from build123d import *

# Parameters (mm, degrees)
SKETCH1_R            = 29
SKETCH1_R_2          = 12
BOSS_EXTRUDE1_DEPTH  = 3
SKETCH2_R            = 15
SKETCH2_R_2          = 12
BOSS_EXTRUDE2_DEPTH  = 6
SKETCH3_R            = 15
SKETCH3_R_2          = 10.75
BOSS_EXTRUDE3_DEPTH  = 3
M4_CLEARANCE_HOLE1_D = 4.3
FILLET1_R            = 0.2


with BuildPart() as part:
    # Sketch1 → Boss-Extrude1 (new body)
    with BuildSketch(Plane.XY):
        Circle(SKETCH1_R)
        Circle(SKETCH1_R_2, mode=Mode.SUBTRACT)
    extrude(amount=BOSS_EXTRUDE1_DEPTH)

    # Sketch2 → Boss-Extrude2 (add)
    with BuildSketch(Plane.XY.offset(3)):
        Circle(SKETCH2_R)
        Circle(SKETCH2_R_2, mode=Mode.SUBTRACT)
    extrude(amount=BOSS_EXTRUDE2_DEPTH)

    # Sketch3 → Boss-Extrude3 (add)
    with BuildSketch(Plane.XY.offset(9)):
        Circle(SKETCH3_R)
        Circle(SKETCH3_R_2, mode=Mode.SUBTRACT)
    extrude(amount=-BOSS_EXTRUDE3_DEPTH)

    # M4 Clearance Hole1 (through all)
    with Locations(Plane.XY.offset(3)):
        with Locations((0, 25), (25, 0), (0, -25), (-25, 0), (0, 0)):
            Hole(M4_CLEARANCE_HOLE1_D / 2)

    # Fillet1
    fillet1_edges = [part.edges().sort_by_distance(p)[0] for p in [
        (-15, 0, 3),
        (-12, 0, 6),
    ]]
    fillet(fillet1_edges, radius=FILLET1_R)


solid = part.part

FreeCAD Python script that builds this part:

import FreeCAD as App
import Part
import Sketcher
Q = App.Units.Quantity


def edges_at(feature, points):
    """Names of the edges that pass closest to the given points."""
    edges = feature.Shape.Edges
    near = lambda p: min(range(len(edges)), key=lambda i: edges[i].distToShape(Part.Vertex(*p))[0])
    return sorted({f"Edge{near(p) + 1}" for p in points})

doc = App.newDocument("Part")
body = doc.addObject("PartDesign::Body", "Body")

# Sketch on XY plane
sketch1 = doc.addObject("Sketcher::SketchObject", "Sketch")
body.addObject(sketch1)
sketch1.AttachmentSupport = (doc.XY_Plane, [""])
sketch1.MapMode = "FlatFace"
sketch1.addGeometry([
    Part.Circle(App.Vector(0, 0, 0), App.Vector(0, 0, 1), 29),
    Part.Circle(App.Vector(0, 0, 0), App.Vector(0, 0, 1), 12),
], False)
sketch1.addConstraint([
    Sketcher.Constraint("Coincident", 0, 3, -1, 1),
    Sketcher.Constraint("Coincident", 1, 3, -1, 1),
    Sketcher.Constraint("Diameter", 0, Q("58 mm")),
    Sketcher.Constraint("Diameter", 1, Q("24 mm")),
])
pad1 = doc.addObject("PartDesign::Pad", "Pad")
body.addObject(pad1)
pad1.Profile = sketch1
pad1.Length = 3

# Sketch on XY plane
sketch2 = doc.addObject("Sketcher::SketchObject", "Sketch001")
body.addObject(sketch2)
sketch2.AttachmentSupport = (doc.XY_Plane, [""])
sketch2.MapMode = "FlatFace"
sketch2.AttachmentOffset = App.Placement(App.Vector(0, 0, 3), App.Rotation())
sketch2.addGeometry([
    Part.Circle(App.Vector(0, 0, 0), App.Vector(0, 0, 1), 15),
    Part.Circle(App.Vector(0, 0, 0), App.Vector(0, 0, 1), 12),
], False)
sketch2.addConstraint([
    Sketcher.Constraint("Coincident", 0, 3, -1, 1),
    Sketcher.Constraint("Coincident", 1, 3, -1, 1),
    Sketcher.Constraint("Diameter", 0, Q("30 mm")),
    Sketcher.Constraint("Diameter", 1, Q("24 mm")),
])
pad2 = doc.addObject("PartDesign::Pad", "Pad001")
body.addObject(pad2)
pad2.Profile = sketch2
pad2.Length = 6

# Sketch on XY plane
sketch3 = doc.addObject("Sketcher::SketchObject", "Sketch002")
body.addObject(sketch3)
sketch3.AttachmentSupport = (doc.XY_Plane, [""])
sketch3.MapMode = "FlatFace"
sketch3.AttachmentOffset = App.Placement(App.Vector(0, 0, 9), App.Rotation())
sketch3.addGeometry([
    Part.Circle(App.Vector(0, 0, 0), App.Vector(0, 0, 1), 15),
    Part.Circle(App.Vector(0, 0, 0), App.Vector(0, 0, 1), 10.75),
], False)
sketch3.addConstraint([
    Sketcher.Constraint("Coincident", 0, 3, -1, 1),
    Sketcher.Constraint("Coincident", 1, 3, -1, 1),
    Sketcher.Constraint("Diameter", 0, Q("30 mm")),
    Sketcher.Constraint("Diameter", 1, Q("21.5 mm")),
])
pad3 = doc.addObject("PartDesign::Pad", "Pad002")
body.addObject(pad3)
pad3.Profile = sketch3
pad3.Length = 3
pad3.Reversed = True

# Sketch on XY plane
sketch4 = doc.addObject("Sketcher::SketchObject", "Sketch003")
body.addObject(sketch4)
sketch4.AttachmentSupport = (doc.XY_Plane, [""])
sketch4.MapMode = "FlatFace"
sketch4.AttachmentOffset = App.Placement(App.Vector(0, 0, 3), App.Rotation())
sketch4.addGeometry([
    Part.Circle(App.Vector(0, 25, 0), App.Vector(0, 0, 1), 2.15),  # 0
    Part.Circle(App.Vector(25, 0, 0), App.Vector(0, 0, 1), 2.15),  # 1
    Part.Circle(App.Vector(0, -25, 0), App.Vector(0, 0, 1), 2.15),  # 2
    Part.Circle(App.Vector(-25, 0, 0), App.Vector(0, 0, 1), 2.15),  # 3
    Part.Circle(App.Vector(0, 0, 0), App.Vector(0, 0, 1), 2.15),  # 4
], False)
sketch4.addConstraint([
    Sketcher.Constraint("Coincident", 4, 3, -1, 1),
    Sketcher.Constraint("Equal", 0, 1),
    Sketcher.Constraint("Equal", 1, 2),
    Sketcher.Constraint("Equal", 2, 3),
    Sketcher.Constraint("Equal", 3, 4),
    Sketcher.Constraint("Symmetric", 0, 3, 2, 3, -1, 1),
    Sketcher.Constraint("Symmetric", 1, 3, 3, 3, -1, 1),
    Sketcher.Constraint("PointOnObject", 0, 3, -2),
    Sketcher.Constraint("PointOnObject", 1, 3, -1),
    Sketcher.Constraint("Diameter", 0, Q("4.3 mm")),
    Sketcher.Constraint("DistanceY", -1, 1, 0, 3, Q("25 mm")),
    Sketcher.Constraint("DistanceX", -1, 1, 1, 3, Q("25 mm")),
])
doc.recompute()
hole = doc.addObject("PartDesign::Hole", "Hole")
body.addObject(hole)
hole.Profile = sketch4
hole.ThreadType = "None"
hole.Diameter = 4.3
hole.DepthType = "ThroughAll"
doc.recompute()

fillet = doc.addObject("PartDesign::Fillet", "Fillet")
body.addObject(fillet)
fillet.Base = (hole, edges_at(hole, [(-15, 0, 3), (-12, 0, 6)]))
fillet.Radius = 0.2

doc.recompute()
